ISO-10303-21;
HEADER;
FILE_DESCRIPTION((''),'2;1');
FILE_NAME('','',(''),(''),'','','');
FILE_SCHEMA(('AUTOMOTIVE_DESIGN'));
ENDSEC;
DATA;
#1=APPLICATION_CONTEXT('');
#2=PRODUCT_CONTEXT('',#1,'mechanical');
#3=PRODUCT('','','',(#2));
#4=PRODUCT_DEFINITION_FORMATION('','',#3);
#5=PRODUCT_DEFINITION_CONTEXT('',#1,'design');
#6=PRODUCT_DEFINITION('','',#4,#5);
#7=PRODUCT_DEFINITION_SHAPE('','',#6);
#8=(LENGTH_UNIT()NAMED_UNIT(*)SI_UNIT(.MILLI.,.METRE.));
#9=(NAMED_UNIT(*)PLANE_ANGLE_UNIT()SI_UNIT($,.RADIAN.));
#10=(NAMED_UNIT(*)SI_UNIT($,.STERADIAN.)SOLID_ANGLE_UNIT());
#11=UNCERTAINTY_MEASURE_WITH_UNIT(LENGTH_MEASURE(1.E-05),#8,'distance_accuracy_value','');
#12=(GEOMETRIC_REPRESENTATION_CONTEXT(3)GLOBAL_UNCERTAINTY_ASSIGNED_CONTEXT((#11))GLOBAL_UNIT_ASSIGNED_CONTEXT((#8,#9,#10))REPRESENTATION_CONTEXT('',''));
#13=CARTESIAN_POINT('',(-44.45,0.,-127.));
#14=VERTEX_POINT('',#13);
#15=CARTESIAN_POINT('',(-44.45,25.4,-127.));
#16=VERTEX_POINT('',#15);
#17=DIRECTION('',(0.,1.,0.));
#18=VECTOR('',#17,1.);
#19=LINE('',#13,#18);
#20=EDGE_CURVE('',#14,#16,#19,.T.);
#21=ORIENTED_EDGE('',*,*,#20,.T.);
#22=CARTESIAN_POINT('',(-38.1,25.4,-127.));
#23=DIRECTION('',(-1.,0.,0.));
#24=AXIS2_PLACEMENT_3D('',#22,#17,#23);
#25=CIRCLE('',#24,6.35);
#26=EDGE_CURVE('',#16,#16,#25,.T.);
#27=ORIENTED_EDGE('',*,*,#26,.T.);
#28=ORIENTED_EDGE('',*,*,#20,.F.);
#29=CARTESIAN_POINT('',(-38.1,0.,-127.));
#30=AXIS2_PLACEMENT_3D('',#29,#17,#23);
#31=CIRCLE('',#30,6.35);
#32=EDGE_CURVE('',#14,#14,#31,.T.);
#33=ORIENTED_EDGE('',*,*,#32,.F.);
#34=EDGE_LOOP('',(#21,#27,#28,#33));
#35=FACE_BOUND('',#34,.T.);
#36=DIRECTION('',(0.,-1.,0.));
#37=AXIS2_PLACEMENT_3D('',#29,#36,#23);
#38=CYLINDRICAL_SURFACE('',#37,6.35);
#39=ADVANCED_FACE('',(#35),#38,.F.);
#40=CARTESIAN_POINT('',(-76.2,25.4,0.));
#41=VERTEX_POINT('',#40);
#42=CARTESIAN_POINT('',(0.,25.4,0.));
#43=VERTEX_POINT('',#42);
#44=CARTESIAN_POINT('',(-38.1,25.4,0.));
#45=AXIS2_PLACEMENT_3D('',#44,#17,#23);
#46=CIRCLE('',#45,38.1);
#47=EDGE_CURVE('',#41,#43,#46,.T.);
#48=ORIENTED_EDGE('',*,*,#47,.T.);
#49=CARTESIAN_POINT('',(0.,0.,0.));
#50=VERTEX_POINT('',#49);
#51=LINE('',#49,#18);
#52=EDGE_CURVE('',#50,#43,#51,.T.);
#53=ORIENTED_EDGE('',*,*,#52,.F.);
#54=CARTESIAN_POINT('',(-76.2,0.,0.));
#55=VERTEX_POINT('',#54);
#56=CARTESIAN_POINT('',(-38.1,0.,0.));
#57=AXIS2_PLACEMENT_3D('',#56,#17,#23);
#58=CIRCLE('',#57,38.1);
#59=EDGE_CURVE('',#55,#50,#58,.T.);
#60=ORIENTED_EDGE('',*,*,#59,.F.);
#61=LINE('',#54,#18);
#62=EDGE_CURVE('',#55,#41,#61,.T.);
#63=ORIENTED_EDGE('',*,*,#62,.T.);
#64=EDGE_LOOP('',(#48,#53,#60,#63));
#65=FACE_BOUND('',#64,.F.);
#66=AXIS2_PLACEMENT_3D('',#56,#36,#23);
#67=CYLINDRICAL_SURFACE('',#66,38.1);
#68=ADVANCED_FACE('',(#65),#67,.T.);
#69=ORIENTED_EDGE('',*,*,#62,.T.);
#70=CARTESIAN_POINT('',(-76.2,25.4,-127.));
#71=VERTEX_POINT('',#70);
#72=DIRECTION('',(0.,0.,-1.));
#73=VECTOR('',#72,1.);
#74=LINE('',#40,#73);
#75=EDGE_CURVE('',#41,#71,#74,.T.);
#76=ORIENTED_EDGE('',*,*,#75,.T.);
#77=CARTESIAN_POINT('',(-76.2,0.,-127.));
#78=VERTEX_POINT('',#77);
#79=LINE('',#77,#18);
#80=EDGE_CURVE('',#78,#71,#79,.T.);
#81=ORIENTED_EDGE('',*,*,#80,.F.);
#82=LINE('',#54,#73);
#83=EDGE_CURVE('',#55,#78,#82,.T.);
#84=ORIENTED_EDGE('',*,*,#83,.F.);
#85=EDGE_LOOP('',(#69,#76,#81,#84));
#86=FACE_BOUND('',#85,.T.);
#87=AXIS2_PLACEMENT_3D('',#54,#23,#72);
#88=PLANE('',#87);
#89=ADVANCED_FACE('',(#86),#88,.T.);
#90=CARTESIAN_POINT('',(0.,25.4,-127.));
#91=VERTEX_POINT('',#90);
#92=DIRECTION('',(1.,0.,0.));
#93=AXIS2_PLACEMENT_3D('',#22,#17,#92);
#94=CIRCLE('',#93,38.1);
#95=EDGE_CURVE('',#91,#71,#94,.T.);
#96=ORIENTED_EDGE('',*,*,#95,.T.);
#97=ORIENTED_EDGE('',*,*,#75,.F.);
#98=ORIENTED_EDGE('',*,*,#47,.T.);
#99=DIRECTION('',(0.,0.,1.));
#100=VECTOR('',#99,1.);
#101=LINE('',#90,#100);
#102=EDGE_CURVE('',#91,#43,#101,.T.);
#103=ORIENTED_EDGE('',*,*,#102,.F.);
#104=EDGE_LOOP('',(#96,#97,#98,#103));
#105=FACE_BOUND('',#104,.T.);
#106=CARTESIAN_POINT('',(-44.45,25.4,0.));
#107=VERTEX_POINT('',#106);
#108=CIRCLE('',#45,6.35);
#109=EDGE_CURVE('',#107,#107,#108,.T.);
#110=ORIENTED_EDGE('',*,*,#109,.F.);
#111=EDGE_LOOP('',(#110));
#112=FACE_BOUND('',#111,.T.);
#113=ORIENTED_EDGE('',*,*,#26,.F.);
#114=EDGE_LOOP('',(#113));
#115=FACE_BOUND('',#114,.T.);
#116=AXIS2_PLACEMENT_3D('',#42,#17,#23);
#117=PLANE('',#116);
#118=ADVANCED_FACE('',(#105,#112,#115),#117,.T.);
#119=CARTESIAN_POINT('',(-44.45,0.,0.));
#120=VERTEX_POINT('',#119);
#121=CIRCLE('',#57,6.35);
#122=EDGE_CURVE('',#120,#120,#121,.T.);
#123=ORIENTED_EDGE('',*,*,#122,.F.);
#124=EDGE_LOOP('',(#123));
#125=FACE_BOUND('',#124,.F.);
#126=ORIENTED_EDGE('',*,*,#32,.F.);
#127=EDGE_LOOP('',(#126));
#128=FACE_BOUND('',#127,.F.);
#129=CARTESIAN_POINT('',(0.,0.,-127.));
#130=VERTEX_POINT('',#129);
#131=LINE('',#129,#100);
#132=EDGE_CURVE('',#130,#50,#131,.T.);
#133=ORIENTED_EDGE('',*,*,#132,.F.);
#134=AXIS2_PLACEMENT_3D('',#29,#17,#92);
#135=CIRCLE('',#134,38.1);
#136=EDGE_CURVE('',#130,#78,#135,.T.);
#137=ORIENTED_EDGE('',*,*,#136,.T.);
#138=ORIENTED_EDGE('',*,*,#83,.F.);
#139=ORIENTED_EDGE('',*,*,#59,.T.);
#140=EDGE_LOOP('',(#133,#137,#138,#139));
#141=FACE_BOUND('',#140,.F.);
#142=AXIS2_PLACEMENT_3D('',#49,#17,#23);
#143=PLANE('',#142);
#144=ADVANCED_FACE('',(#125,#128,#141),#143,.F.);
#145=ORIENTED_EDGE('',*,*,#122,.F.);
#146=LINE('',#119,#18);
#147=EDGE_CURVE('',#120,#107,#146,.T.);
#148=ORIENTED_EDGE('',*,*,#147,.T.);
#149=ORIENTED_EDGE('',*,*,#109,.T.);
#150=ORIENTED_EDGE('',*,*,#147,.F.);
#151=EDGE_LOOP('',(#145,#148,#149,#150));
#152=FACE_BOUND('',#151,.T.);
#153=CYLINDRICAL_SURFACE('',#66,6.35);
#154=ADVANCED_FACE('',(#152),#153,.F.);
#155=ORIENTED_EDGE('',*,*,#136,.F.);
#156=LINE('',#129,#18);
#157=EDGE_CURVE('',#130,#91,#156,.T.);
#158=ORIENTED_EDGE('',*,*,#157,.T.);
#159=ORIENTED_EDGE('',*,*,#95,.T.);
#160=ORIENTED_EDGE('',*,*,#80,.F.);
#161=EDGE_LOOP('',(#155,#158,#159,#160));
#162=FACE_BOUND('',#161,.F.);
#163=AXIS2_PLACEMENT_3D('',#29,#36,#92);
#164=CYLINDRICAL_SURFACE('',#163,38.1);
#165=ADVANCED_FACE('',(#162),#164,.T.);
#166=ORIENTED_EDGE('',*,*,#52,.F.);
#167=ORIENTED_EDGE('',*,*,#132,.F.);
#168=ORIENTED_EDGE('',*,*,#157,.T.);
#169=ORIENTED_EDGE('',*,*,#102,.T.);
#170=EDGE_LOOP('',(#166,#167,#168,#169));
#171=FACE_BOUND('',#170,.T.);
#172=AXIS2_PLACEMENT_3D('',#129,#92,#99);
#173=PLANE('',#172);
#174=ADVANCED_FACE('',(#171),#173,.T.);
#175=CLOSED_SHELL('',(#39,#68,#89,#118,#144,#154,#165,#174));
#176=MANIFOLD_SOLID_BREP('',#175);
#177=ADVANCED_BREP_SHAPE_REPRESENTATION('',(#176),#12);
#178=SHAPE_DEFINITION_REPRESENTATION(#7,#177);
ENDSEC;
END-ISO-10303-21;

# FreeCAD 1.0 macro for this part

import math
import FreeCAD as App
import Part
import Sketcher
Q = App.Units.Quantity

doc = App.newDocument("Part")
body = doc.addObject("PartDesign::Body", "Body")

sketch1 = body.newObject("Sketcher::SketchObject", "Sketch")
sketch1.AttachmentSupport = (doc.getObject("XZ_Plane"), [""])
sketch1.MapMode = "FlatFace"
sketch1.addGeometry(Part.LineSegment(App.Vector(-76.2, -127, 0), App.Vector(-76.2, 0, 0)), False)
sketch1.addGeometry(Part.ArcOfCircle(Part.Circle(App.Vector(-38.1, 0, 0), App.Vector(0, 0, 1), 38.1), math.radians(0), math.radians(180)), False)
sketch1.addGeometry(Part.LineSegment(App.Vector(0, 0, 0), App.Vector(0, -127, 0)), False)
sketch1.addGeometry(Part.ArcOfCircle(Part.Circle(App.Vector(-38.1, -127, 0), App.Vector(0, 0, 1), 38.1), math.radians(180), math.radians(360)), False)
sketch1.addGeometry(Part.Circle(App.Vector(-38.1, -127, 0), App.Vector(0, 0, 1), 6.35), False)
sketch1.addGeometry(Part.Circle(App.Vector(-38.1, 0, 0), App.Vector(0, 0, 1), 6.35), False)
sketch1.addConstraint(Sketcher.Constraint("Tangent", 0, 2, 1, 2))
sketch1.addConstraint(Sketcher.Constraint("Tangent", 1, 1, 2, 1))
sketch1.addConstraint(Sketcher.Constraint("Tangent", 2, 2, 3, 2))
sketch1.addConstraint(Sketcher.Constraint("Tangent", 3, 1, 0, 1))
sketch1.addConstraint(Sketcher.Constraint("Vertical", 0))
sketch1.addConstraint(Sketcher.Constraint("Vertical", 2))
sketch1.addConstraint(Sketcher.Constraint("Coincident", 1, 1, -1, 1))
sketch1.addConstraint(Sketcher.Constraint("Coincident", 4, 3, 3, 3))
sketch1.addConstraint(Sketcher.Constraint("Coincident", 5, 3, 1, 3))
sketch1.addConstraint(Sketcher.Constraint("Equal", 4, 5))
sketch1.addConstraint(Sketcher.Constraint("Diameter", 4, Q("0.5 in")))
sketch1.addConstraint(Sketcher.Constraint("Radius", 1, Q("1.5 in")))
sketch1.addConstraint(Sketcher.Constraint("DistanceY", 0, 1, 0, 2, Q("5 in")))
pad1 = body.newObject("PartDesign::Pad", "Pad")
pad1.Profile = sketch1
pad1.Length = Q("1 in")
pad1.Reversed = True

doc.recompute()
